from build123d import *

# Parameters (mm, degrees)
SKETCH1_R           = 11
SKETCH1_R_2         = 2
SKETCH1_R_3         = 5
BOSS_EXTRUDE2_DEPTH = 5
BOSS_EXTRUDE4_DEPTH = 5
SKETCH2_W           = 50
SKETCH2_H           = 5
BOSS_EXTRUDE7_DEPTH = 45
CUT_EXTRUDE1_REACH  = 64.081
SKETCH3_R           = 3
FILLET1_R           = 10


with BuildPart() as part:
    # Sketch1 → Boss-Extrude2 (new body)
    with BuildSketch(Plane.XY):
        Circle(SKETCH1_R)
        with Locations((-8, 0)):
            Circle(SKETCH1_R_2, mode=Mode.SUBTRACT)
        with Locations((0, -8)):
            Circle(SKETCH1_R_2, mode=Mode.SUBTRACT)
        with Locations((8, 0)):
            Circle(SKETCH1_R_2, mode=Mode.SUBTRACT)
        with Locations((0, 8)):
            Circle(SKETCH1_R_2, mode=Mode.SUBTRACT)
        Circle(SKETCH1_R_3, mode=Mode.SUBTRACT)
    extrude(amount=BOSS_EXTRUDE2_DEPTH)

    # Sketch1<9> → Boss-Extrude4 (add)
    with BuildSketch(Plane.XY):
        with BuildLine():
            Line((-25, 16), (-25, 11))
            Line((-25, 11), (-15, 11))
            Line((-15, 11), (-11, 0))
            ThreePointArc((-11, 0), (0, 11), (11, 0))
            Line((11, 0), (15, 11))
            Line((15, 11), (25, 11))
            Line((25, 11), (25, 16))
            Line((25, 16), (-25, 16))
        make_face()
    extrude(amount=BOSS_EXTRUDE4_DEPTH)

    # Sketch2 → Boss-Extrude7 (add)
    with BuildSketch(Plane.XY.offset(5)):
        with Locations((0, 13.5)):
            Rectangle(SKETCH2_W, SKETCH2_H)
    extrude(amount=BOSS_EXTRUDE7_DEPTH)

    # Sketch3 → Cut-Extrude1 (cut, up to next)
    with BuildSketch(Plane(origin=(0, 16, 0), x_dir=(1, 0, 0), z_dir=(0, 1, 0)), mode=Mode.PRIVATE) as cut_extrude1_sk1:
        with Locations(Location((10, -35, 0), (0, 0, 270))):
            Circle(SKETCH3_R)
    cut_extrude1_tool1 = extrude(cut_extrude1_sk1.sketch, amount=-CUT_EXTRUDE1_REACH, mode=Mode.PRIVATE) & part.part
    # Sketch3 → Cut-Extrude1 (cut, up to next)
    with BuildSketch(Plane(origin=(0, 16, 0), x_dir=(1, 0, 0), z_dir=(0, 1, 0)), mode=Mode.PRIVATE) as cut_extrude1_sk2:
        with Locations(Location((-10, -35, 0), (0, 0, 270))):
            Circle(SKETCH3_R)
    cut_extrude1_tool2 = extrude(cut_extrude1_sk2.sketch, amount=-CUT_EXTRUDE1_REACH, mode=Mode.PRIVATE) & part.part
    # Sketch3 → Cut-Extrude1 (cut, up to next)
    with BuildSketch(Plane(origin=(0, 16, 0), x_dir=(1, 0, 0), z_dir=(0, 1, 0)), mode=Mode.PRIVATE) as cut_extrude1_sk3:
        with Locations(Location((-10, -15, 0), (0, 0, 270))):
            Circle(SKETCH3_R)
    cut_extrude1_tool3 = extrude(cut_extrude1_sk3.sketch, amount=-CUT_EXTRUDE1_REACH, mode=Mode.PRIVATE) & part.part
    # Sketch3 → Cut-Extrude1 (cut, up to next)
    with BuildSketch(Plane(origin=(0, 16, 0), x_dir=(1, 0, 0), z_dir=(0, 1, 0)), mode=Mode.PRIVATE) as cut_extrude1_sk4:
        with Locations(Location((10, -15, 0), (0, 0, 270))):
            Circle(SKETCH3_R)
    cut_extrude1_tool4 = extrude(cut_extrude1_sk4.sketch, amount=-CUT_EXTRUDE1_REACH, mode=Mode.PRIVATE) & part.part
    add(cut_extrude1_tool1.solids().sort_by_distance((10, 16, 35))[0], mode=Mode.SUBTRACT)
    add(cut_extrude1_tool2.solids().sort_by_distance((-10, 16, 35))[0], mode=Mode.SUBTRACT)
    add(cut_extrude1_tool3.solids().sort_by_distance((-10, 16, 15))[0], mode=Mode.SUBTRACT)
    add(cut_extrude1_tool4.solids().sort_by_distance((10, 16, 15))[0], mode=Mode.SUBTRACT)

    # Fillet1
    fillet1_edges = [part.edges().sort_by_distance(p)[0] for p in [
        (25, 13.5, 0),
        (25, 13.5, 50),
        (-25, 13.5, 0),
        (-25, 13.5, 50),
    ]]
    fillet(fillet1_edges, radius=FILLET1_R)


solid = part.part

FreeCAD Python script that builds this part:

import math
import FreeCAD as App
import Part
import Sketcher
from FreeCAD import Vector
Q = App.Units.Quantity


def edges_at(feature, points):
    """Names of the edges that pass closest to the given points."""
    edges = feature.Shape.Edges
    near = lambda p: min(range(len(edges)), key=lambda i: edges[i].distToShape(Part.Vertex(*p))[0])
    return sorted({f"Edge{near(p) + 1}" for p in points})


def add_polygon(sketch, points):
    """Adds a closed chain of lines whose ends are joined by coincident constraints."""
    first, n = sketch.GeometryCount, len(points)
    for a, b in zip(points, points[1:] + points[:1]):
        sketch.addGeometry(Part.LineSegment(App.Vector(*a, 0), App.Vector(*b, 0)), False)
    for i in range(n):
        sketch.addConstraint(Sketcher.Constraint("Coincident", first + i, 2, first + (i + 1) % n, 1))

doc = App.newDocument("Part")
body = doc.addObject("PartDesign::Body", "Body")

# Sketch on XY plane
sketch1 = body.newObject("Sketcher::SketchObject", "Sketch")
sketch1.AttachmentSupport = (doc.getObject("XY_Plane"), [""])
sketch1.MapMode = "FlatFace"
sketch1.addGeometry(Part.Circle(Vector(0, 0, 0), Vector(0, 0, 1), 11), False)
sketch1.addGeometry(Part.Circle(Vector(0, -8, 0), Vector(0, 0, 1), 2), False)
sketch1.addGeometry(Part.Circle(Vector(-8, 0, 0), Vector(0, 0, 1), 2), False)
sketch1.addGeometry(Part.Circle(Vector(0, 0, 0), Vector(0, 0, 1), 5), False)
sketch1.addGeometry(Part.Circle(Vector(8, 0, 0), Vector(0, 0, 1), 2), False)
sketch1.addGeometry(Part.Circle(Vector(0, 8, 0), Vector(0, 0, 1), 2), False)
sketch1.addConstraint(Sketcher.Constraint("Coincident", 0, 3, -1, 1))
sketch1.addConstraint(Sketcher.Constraint("Coincident", 3, 3, -1, 1))
sketch1.addConstraint(Sketcher.Constraint("Equal", 1, 2))
sketch1.addConstraint(Sketcher.Constraint("Equal", 2, 4))
sketch1.addConstraint(Sketcher.Constraint("Equal", 4, 5))
sketch1.addConstraint(Sketcher.Constraint("Symmetric", 2, 3, 4, 3, -1, 1))
sketch1.addConstraint(Sketcher.Constraint("Symmetric", 1, 3, 5, 3, -1, 1))
sketch1.addConstraint(Sketcher.Constraint("PointOnObject", 1, 3, -2))
sketch1.addConstraint(Sketcher.Constraint("PointOnObject", 2, 3, -1))
sketch1.addConstraint(Sketcher.Constraint("Diameter", 0, Q("22 mm")))
sketch1.addConstraint(Sketcher.Constraint("Diameter", 1, Q("4 mm")))
sketch1.addConstraint(Sketcher.Constraint("Diameter", 3, Q("10 mm")))
sketch1.addConstraint(Sketcher.Constraint("DistanceY", 1, 3, -1, 1, Q("8 mm")))
sketch1.addConstraint(Sketcher.Constraint("DistanceX", 2, 3, -1, 1, Q("8 mm")))
pad1 = body.newObject("PartDesign::Pad", "Pad")
pad1.Profile = sketch1
pad1.Length = 5

# Sketch on XY plane
sketch2 = body.newObject("Sketcher::SketchObject", "Sketch001")
sketch2.AttachmentSupport = (doc.getObject("XY_Plane"), [""])
sketch2.MapMode = "FlatFace"
sketch2.addGeometry(Part.LineSegment(Vector(-25, 16, 0), Vector(-25, 11, 0)), False)
sketch2.addGeometry(Part.LineSegment(Vector(-25, 11, 0), Vector(-15, 11, 0)), False)
sketch2.addGeometry(Part.LineSegment(Vector(-15, 11, 0), Vector(-11, 0, 0)), False)
sketch2.addGeometry(Part.ArcOfCircle(Part.Circle(Vector(0, 0, 0), Vector(0, 0, 1), 11), math.radians(0), math.radians(180)), False)
sketch2.addGeometry(Part.LineSegment(Vector(11, 0, 0), Vector(15, 11, 0)), False)
sketch2.addGeometry(Part.LineSegment(Vector(15, 11, 0), Vector(25, 11, 0)), False)
sketch2.addGeometry(Part.LineSegment(Vector(25, 11, 0), Vector(25, 16, 0)), False)
sketch2.addGeometry(Part.LineSegment(Vector(25, 16, 0), Vector(-25, 16, 0)), False)
sketch2.addConstraint(Sketcher.Constraint("Coincident", 0, 2, 1, 1))
sketch2.addConstraint(Sketcher.Constraint("Coincident", 1, 2, 2, 1))
sketch2.addConstraint(Sketcher.Constraint("Coincident", 2, 2, 3, 2))
sketch2.addConstraint(Sketcher.Constraint("Coincident", 3, 1, 4, 1))
sketch2.addConstraint(Sketcher.Constraint("Coincident", 4, 2, 5, 1))
sketch2.addConstraint(Sketcher.Constraint("Coincident", 5, 2, 6, 1))
sketch2.addConstraint(Sketcher.Constraint("Coincident", 6, 2, 7, 1))
sketch2.addConstraint(Sketcher.Constraint("Coincident", 7, 2, 0, 1))
sketch2.addConstraint(Sketcher.Constraint("Vertical", 0))
sketch2.addConstraint(Sketcher.Constraint("Horizontal", 1))
sketch2.addConstraint(Sketcher.Constraint("Horizontal", 5))
sketch2.addConstraint(Sketcher.Constraint("Vertical", 6))
sketch2.addConstraint(Sketcher.Constraint("Horizontal", 7))
sketch2.addConstraint(Sketcher.Constraint("Coincident", 3, 3, -1, 1))
sketch2.addConstraint(Sketcher.Constraint("Symmetric", 1, 2, 4, 2, -2))
sketch2.addConstraint(Sketcher.Constraint("PointOnObject", 2, 2, -1))
sketch2.addConstraint(Sketcher.Constraint("PointOnObject", 3, 1, -1))
sketch2.addConstraint(Sketcher.Constraint("Equal", 1, 5))
sketch2.addConstraint(Sketcher.Constraint("Radius", 3, Q("11 mm")))
sketch2.addConstraint(Sketcher.Constraint("DistanceX", 1, 1, 1, 2, Q("10 mm")))
sketch2.addConstraint(Sketcher.Constraint("DistanceX", 7, 2, 7, 1, Q("50 mm")))
sketch2.addConstraint(Sketcher.Constraint("DistanceY", 0, 2, 0, 1, Q("5 mm")))
sketch2.addConstraint(Sketcher.Constraint("DistanceY", -1, 1, 0, 2, Q("11 mm")))
pad2 = body.newObject("PartDesign::Pad", "Pad001")
pad2.Profile = sketch2
pad2.Length = 5

# Sketch on XY plane
sketch3 = body.newObject("Sketcher::SketchObject", "Sketch002")
sketch3.AttachmentSupport = (doc.getObject("XY_Plane"), [""])
sketch3.MapMode = "FlatFace"
sketch3.AttachmentOffset = App.Placement(Vector(0, 0, 5), App.Rotation())
add_polygon(sketch3, [(-25, 16), (-25, 11), (25, 11), (25, 16)])  # lines 0-3
sketch3.addConstraint(Sketcher.Constraint("Vertical", 0))
sketch3.addConstraint(Sketcher.Constraint("Horizontal", 1))
sketch3.addConstraint(Sketcher.Constraint("Vertical", 2))
sketch3.addConstraint(Sketcher.Constraint("Horizontal", 3))
sketch3.addConstraint(Sketcher.Constraint("DistanceX", 1, 1, 1, 2, Q("50 mm")))
sketch3.addConstraint(Sketcher.Constraint("DistanceY", 0, 2, 0, 1, Q("5 mm")))
sketch3.addConstraint(Sketcher.Constraint("DistanceX", 0, 2, -1, 1, Q("25 mm")))
sketch3.addConstraint(Sketcher.Constraint("DistanceY", -1, 1, 0, 2, Q("11 mm")))
pad3 = body.newObject("PartDesign::Pad", "Pad002")
pad3.Profile = sketch3
pad3.Length = 45

# Sketch on XZ plane
sketch4 = body.newObject("Sketcher::SketchObject", "Sketch003")
sketch4.AttachmentSupport = (doc.getObject("XZ_Plane"), [""])
sketch4.MapMode = "FlatFace"
sketch4.AttachmentOffset = App.Placement(Vector(0, 0, -16), App.Rotation())
sketch4.addGeometry(Part.Circle(Vector(10, 35, 0), Vector(0, 0, 1), 3), False)
sketch4.addConstraint(Sketcher.Constraint("Diameter", 0, Q("6 mm")))
sketch4.addConstraint(Sketcher.Constraint("DistanceX", -1, 1, 0, 3, Q("10 mm")))
sketch4.addConstraint(Sketcher.Constraint("DistanceY", -1, 1, 0, 3, Q("35 mm")))
pocket1 = body.newObject("PartDesign::Pocket", "Pocket")
pocket1.Profile = sketch4
pocket1.Type = "UpToFirst"
pocket1.Reversed = True

# Sketch on XZ plane
sketch5 = body.newObject("Sketcher::SketchObject", "Sketch004")
sketch5.AttachmentSupport = (doc.getObject("XZ_Plane"), [""])
sketch5.MapMode = "FlatFace"
sketch5.AttachmentOffset = App.Placement(Vector(0, 0, -16), App.Rotation())
sketch5.addGeometry(Part.Circle(Vector(-10, 35, 0), Vector(0, 0, 1), 3), False)
sketch5.addConstraint(Sketcher.Constraint("Diameter", 0, Q("6 mm")))
sketch5.addConstraint(Sketcher.Constraint("DistanceX", 0, 3, -1, 1, Q("10 mm")))
sketch5.addConstraint(Sketcher.Constraint("DistanceY", -1, 1, 0, 3, Q("35 mm")))
pocket2 = body.newObject("PartDesign::Pocket", "Pocket001")
pocket2.Profile = sketch5
pocket2.Type = "UpToFirst"
pocket2.Reversed = True

# Sketch on XZ plane
sketch6 = body.newObject("Sketcher::SketchObject", "Sketch005")
sketch6.AttachmentSupport = (doc.getObject("XZ_Plane"), [""])
sketch6.MapMode = "FlatFace"
sketch6.AttachmentOffset = App.Placement(Vector(0, 0, -16), App.Rotation())
sketch6.addGeometry(Part.Circle(Vector(-10, 15, 0), Vector(0, 0, 1), 3), False)
sketch6.addConstraint(Sketcher.Constraint("Diameter", 0, Q("6 mm")))
sketch6.addConstraint(Sketcher.Constraint("DistanceX", 0, 3, -1, 1, Q("10 mm")))
sketch6.addConstraint(Sketcher.Constraint("DistanceY", -1, 1, 0, 3, Q("15 mm")))
pocket3 = body.newObject("PartDesign::Pocket", "Pocket002")
pocket3.Profile = sketch6
pocket3.Type = "UpToFirst"
pocket3.Reversed = True

# Sketch on XZ plane
sketch7 = body.newObject("Sketcher::SketchObject", "Sketch006")
sketch7.AttachmentSupport = (doc.getObject("XZ_Plane"), [""])
sketch7.MapMode = "FlatFace"
sketch7.AttachmentOffset = App.Placement(Vector(0, 0, -16), App.Rotation())
sketch7.addGeometry(Part.Circle(Vector(10, 15, 0), Vector(0, 0, 1), 3), False)
sketch7.addConstraint(Sketcher.Constraint("Diameter", 0, Q("6 mm")))
sketch7.addConstraint(Sketcher.Constraint("DistanceX", -1, 1, 0, 3, Q("10 mm")))
sketch7.addConstraint(Sketcher.Constraint("DistanceY", -1, 1, 0, 3, Q("15 mm")))
pocket4 = body.newObject("PartDesign::Pocket", "Pocket003")
pocket4.Profile = sketch7
pocket4.Type = "UpToFirst"
pocket4.Reversed = True
doc.recompute()

fillet = body.newObject("PartDesign::Fillet", "Fillet")
fillet.Base = (pocket4, edges_at(pocket4, [
    (25, 13.5, 0),
    (25, 13.5, 50),
    (-25, 13.5, 0),
    (-25, 13.5, 50),
]))
fillet.Radius = 10

doc.recompute()
